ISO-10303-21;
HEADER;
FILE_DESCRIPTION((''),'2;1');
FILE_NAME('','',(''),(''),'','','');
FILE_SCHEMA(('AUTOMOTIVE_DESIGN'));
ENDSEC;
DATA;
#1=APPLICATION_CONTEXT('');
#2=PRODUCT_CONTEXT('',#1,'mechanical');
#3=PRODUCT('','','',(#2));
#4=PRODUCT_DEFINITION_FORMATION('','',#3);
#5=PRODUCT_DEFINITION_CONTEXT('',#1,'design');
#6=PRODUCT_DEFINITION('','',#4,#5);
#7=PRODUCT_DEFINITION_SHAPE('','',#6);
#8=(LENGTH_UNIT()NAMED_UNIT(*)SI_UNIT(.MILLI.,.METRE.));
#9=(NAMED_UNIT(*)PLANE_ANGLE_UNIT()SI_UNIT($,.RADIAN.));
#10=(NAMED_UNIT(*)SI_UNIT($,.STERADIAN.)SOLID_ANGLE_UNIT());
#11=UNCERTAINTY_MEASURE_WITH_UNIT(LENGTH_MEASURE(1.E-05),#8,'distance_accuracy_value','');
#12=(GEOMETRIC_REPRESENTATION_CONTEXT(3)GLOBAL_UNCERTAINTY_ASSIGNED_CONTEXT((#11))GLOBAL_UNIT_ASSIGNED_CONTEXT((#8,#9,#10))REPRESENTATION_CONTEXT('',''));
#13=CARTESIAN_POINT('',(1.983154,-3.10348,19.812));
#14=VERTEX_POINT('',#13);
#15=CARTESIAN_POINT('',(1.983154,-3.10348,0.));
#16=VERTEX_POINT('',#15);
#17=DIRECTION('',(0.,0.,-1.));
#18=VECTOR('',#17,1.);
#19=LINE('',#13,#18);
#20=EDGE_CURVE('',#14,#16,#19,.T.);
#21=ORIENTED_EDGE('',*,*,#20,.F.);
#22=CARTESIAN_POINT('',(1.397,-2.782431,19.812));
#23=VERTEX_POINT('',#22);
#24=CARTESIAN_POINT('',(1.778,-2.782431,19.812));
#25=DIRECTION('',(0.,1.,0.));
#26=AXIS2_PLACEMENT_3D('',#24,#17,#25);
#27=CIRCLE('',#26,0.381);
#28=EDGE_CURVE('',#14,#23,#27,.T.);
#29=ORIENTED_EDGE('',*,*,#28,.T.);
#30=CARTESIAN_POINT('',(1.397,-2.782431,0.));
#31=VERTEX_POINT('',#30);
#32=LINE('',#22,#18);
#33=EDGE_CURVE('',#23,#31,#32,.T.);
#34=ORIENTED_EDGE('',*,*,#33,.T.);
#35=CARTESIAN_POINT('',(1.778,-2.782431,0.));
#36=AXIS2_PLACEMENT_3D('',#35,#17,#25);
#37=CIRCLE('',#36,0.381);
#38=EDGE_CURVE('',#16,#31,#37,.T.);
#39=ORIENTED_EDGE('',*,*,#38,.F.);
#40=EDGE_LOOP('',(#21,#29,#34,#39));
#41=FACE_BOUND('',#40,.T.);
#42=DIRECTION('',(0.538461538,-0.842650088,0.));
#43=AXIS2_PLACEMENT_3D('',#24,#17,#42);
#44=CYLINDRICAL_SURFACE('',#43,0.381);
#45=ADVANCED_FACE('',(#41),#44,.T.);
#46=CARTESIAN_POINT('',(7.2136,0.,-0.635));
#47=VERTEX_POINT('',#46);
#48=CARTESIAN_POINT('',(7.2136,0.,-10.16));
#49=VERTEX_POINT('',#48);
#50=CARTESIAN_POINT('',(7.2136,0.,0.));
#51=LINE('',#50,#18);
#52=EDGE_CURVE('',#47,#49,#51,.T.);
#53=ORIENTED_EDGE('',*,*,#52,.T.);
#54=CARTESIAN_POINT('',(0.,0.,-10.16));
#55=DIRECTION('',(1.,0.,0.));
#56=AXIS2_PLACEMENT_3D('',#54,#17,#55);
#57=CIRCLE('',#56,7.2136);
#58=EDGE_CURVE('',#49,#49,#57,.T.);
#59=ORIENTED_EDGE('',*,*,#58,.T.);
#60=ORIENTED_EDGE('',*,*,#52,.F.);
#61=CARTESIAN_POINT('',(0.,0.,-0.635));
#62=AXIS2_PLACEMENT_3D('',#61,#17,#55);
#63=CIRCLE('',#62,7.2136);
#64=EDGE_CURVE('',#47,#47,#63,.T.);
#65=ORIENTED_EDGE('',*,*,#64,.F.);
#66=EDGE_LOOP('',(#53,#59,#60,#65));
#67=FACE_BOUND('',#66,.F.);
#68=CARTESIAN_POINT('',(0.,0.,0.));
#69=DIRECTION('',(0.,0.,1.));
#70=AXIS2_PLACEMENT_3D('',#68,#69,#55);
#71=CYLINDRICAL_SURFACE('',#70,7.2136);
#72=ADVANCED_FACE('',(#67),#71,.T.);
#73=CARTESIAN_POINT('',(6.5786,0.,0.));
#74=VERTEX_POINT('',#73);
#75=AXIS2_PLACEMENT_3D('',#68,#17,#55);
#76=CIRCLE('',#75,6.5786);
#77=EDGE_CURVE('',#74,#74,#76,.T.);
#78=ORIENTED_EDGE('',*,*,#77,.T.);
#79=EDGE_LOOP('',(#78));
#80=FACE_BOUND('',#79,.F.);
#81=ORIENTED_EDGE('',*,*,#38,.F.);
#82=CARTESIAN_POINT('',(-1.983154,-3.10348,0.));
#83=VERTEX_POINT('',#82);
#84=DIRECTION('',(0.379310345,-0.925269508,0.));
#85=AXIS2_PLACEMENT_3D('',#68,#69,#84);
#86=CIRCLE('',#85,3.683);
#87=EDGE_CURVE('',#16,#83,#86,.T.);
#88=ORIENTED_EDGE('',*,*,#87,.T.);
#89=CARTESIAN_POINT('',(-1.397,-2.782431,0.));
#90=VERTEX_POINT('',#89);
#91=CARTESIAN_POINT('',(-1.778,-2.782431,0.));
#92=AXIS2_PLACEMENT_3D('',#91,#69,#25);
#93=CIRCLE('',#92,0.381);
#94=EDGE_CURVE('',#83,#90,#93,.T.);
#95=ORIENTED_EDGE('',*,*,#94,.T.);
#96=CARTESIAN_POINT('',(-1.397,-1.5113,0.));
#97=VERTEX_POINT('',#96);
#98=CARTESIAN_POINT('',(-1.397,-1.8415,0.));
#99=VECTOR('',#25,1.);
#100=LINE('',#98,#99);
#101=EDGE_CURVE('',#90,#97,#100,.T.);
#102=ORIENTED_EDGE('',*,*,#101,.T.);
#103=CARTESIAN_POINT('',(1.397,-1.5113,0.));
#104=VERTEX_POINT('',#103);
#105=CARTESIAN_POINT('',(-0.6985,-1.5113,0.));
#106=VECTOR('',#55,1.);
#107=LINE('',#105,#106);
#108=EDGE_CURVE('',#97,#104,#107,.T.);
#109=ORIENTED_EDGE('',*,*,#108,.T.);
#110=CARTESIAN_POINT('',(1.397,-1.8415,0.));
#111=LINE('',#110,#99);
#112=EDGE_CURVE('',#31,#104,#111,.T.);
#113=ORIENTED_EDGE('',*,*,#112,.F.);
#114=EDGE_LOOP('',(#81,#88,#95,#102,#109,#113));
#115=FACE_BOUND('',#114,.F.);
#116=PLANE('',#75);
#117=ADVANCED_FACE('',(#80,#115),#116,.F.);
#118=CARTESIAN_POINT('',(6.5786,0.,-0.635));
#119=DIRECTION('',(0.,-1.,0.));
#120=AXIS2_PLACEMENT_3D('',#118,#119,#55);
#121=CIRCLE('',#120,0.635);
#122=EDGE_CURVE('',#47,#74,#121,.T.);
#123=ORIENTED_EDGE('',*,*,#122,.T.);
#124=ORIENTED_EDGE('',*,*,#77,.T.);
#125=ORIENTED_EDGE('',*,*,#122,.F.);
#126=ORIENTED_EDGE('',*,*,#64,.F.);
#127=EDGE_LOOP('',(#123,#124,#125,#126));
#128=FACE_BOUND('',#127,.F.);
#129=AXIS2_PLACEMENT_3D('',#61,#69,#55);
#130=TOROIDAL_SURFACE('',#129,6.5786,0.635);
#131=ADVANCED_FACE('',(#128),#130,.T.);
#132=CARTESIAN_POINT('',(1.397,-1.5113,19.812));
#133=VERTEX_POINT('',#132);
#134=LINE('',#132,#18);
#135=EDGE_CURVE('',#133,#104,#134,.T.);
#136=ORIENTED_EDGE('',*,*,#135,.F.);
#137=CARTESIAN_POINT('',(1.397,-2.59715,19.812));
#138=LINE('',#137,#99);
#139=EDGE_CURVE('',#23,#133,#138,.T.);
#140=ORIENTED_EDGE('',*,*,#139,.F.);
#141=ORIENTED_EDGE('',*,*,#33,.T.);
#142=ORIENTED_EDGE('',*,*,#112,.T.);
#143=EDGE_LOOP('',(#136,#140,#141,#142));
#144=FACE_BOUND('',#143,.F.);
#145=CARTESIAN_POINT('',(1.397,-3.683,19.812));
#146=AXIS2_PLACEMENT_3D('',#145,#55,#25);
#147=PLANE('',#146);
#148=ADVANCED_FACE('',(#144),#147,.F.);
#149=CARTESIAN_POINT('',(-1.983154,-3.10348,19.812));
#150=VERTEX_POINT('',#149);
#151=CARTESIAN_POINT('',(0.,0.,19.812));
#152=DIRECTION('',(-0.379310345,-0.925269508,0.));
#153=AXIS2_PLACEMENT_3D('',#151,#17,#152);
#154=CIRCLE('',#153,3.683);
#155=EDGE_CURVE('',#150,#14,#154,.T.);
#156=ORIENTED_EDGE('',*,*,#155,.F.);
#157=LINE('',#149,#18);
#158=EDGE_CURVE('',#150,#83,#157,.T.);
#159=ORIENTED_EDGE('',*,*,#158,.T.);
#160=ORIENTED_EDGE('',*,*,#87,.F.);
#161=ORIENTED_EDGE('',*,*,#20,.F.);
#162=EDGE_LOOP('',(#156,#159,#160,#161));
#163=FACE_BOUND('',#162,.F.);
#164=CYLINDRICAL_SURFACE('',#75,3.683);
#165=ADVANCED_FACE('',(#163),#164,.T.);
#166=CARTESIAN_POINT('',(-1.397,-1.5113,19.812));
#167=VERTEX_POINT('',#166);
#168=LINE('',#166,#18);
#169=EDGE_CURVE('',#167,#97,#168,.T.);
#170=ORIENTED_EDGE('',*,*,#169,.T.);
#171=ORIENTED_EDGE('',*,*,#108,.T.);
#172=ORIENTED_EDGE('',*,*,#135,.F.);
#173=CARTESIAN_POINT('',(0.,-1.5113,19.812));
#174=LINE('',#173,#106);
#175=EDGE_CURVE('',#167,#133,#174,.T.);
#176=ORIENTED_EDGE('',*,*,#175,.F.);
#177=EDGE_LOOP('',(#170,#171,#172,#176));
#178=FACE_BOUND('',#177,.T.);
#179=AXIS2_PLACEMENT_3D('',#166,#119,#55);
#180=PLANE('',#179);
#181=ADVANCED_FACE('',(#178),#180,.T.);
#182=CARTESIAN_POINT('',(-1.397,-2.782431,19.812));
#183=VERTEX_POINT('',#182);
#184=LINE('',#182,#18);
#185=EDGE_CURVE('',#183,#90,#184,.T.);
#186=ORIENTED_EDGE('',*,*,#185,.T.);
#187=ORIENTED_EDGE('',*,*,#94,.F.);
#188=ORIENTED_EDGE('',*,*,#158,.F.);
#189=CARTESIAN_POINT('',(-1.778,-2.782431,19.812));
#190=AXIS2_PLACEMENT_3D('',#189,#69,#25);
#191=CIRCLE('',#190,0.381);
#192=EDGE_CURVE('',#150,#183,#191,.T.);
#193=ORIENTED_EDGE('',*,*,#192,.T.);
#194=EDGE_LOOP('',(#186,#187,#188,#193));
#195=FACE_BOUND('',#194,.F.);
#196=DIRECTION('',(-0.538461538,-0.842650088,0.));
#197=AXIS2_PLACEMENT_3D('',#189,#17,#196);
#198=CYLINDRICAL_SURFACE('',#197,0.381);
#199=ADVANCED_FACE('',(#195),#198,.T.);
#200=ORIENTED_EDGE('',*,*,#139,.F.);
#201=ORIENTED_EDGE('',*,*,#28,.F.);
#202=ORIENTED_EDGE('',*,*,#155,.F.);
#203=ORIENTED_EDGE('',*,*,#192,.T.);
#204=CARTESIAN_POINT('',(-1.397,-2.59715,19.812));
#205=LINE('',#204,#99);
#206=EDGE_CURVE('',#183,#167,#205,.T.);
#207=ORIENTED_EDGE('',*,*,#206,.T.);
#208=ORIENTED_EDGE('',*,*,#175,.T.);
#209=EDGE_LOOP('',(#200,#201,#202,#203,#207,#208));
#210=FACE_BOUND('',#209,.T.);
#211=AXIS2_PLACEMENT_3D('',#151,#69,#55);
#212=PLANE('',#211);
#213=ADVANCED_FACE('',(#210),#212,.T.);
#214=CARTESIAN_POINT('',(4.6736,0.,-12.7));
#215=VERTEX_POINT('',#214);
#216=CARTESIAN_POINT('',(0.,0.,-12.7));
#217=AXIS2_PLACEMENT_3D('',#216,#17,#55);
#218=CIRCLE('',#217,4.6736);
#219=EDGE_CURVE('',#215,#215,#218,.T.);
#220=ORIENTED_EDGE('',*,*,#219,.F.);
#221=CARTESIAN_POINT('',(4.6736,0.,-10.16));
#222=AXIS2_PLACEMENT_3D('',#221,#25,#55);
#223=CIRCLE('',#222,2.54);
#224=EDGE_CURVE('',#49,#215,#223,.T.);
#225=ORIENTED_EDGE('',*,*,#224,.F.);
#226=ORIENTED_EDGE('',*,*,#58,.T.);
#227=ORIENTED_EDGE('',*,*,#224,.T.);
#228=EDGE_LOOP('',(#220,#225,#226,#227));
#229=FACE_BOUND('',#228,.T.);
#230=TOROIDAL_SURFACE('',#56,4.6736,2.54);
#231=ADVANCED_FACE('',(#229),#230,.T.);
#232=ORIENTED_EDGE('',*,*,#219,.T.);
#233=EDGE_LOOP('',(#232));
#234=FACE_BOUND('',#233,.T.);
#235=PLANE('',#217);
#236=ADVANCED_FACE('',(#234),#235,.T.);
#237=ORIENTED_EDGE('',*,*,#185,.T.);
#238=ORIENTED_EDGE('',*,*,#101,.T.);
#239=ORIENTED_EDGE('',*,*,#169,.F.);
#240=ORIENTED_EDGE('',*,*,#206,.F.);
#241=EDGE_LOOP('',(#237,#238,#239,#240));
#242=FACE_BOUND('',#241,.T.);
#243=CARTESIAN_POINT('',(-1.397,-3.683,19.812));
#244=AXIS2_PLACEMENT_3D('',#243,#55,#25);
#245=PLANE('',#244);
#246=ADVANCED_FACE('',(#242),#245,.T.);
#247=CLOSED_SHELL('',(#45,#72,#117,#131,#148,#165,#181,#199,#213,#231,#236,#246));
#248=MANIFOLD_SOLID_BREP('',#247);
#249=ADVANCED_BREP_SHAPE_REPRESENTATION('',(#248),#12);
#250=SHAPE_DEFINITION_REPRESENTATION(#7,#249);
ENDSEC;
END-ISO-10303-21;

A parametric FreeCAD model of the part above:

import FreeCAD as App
import Part
import Sketcher

V = App.Vector
Q = App.Units.Quantity


def edges_at(feature, points):
    """Names of the edges that pass closest to the given points."""
    edges = feature.Shape.Edges
    near = lambda p: min(range(len(edges)), key=lambda i: edges[i].distToShape(Part.Vertex(*p))[0])
    return sorted({f"Edge{near(p) + 1}" for p in points})


def add_polygon(sketch, points):
    """Adds a closed chain of lines whose ends are joined by coincident constraints."""
    first, n = sketch.GeometryCount, len(points)
    for a, b in zip(points, points[1:] + points[:1]):
        sketch.addGeometry(Part.LineSegment(App.Vector(*a, 0), App.Vector(*b, 0)), False)
    for i in range(n):
        sketch.addConstraint(Sketcher.Constraint("Coincident", first + i, 2, first + (i + 1) % n, 1))

doc = App.newDocument("Part")
body = doc.addObject("PartDesign::Body", "Body")

sketch1 = body.newObject("Sketcher::SketchObject", "Sketch")
sketch1.AttachmentSupport = (doc.getObject("XY_Plane"), [""])
sketch1.MapMode = "FlatFace"
sketch1.addGeometry(Part.Circle(V(0, 0, 0), V(0, 0, 1), 3.7), False)
sketch1.addConstraint(Sketcher.Constraint("Coincident", 0, 3, -1, 1))
sketch1.addConstraint(Sketcher.Constraint("Diameter", 0, Q("0.29 in")))
pad1 = body.newObject("PartDesign::Pad", "Pad")
pad1.Profile = sketch1
pad1.Length = Q("0.78 in")

sketch2 = body.newObject("Sketcher::SketchObject", "Sketch001")
sketch2.AttachmentSupport = (doc.getObject("XY_Plane"), [""])
sketch2.MapMode = "FlatFace"
sketch2.AttachmentOffset = App.Placement(V(0, 0, 0.78 * 25.4), App.Rotation())
add_polygon(sketch2, [(-1.4, -1.5), (-1.4, -3.7), (1.4, -3.7), (1.4, -1.5)])
sketch2.addConstraint(Sketcher.Constraint("Vertical", 0))
sketch2.addConstraint(Sketcher.Constraint("Horizontal", 1))
sketch2.addConstraint(Sketcher.Constraint("Vertical", 2))
sketch2.addConstraint(Sketcher.Constraint("Horizontal", 3))
sketch2.addConstraint(Sketcher.Constraint("DistanceX", 1, 1, 1, 2, Q("0.11 in")))
sketch2.addConstraint(Sketcher.Constraint("DistanceY", 0, 2, 0, 1, Q("0.0855 in")))
sketch2.addConstraint(Sketcher.Constraint("DistanceX", 0, 2, -1, 1, Q("0.055 in")))
sketch2.addConstraint(Sketcher.Constraint("DistanceY", 0, 2, -1, 1, Q("0.145 in")))
pocket1 = body.newObject("PartDesign::Pocket", "Pocket")
pocket1.Profile = sketch2
pocket1.Length = Q("1 in")
doc.recompute()

fillet = body.newObject("PartDesign::Fillet", "Fillet")
fillet.Base = (pocket1, edges_at(pocket1, [(1.397, -3.408, 9.906), (-1.397, -3.408, 9.906)]))
fillet.Radius = Q("0.015 in")

sketch3 = body.newObject("Sketcher::SketchObject", "Sketch002")
sketch3.AttachmentSupport = (doc.getObject("XY_Plane"), [""])
sketch3.MapMode = "FlatFace"
sketch3.addGeometry(Part.Circle(V(0, 0, 0), V(0, 0, 1), 7), False)
sketch3.addConstraint(Sketcher.Constraint("Coincident", 0, 3, -1, 1))
sketch3.addConstraint(Sketcher.Constraint("Diameter", 0, Q("0.568 in")))
pad2 = body.newObject("PartDesign::Pad", "Pad001")
pad2.Profile = sketch3
pad2.Length = Q("0.5 in")
pad2.Reversed = True
doc.recompute()

fillet2 = body.newObject("PartDesign::Fillet", "Fillet001")
fillet2.Base = (pad2, edges_at(pad2, [(-7.214, 0, -12.7)]))
fillet2.Radius = Q("0.1 in")
doc.recompute()

fillet3 = body.newObject("PartDesign::Fillet", "Fillet002")
fillet3.Base = (fillet2, edges_at(fillet2, [(-7.214, 0, 0)]))
fillet3.Radius = Q("0.025 in")

doc.recompute()
